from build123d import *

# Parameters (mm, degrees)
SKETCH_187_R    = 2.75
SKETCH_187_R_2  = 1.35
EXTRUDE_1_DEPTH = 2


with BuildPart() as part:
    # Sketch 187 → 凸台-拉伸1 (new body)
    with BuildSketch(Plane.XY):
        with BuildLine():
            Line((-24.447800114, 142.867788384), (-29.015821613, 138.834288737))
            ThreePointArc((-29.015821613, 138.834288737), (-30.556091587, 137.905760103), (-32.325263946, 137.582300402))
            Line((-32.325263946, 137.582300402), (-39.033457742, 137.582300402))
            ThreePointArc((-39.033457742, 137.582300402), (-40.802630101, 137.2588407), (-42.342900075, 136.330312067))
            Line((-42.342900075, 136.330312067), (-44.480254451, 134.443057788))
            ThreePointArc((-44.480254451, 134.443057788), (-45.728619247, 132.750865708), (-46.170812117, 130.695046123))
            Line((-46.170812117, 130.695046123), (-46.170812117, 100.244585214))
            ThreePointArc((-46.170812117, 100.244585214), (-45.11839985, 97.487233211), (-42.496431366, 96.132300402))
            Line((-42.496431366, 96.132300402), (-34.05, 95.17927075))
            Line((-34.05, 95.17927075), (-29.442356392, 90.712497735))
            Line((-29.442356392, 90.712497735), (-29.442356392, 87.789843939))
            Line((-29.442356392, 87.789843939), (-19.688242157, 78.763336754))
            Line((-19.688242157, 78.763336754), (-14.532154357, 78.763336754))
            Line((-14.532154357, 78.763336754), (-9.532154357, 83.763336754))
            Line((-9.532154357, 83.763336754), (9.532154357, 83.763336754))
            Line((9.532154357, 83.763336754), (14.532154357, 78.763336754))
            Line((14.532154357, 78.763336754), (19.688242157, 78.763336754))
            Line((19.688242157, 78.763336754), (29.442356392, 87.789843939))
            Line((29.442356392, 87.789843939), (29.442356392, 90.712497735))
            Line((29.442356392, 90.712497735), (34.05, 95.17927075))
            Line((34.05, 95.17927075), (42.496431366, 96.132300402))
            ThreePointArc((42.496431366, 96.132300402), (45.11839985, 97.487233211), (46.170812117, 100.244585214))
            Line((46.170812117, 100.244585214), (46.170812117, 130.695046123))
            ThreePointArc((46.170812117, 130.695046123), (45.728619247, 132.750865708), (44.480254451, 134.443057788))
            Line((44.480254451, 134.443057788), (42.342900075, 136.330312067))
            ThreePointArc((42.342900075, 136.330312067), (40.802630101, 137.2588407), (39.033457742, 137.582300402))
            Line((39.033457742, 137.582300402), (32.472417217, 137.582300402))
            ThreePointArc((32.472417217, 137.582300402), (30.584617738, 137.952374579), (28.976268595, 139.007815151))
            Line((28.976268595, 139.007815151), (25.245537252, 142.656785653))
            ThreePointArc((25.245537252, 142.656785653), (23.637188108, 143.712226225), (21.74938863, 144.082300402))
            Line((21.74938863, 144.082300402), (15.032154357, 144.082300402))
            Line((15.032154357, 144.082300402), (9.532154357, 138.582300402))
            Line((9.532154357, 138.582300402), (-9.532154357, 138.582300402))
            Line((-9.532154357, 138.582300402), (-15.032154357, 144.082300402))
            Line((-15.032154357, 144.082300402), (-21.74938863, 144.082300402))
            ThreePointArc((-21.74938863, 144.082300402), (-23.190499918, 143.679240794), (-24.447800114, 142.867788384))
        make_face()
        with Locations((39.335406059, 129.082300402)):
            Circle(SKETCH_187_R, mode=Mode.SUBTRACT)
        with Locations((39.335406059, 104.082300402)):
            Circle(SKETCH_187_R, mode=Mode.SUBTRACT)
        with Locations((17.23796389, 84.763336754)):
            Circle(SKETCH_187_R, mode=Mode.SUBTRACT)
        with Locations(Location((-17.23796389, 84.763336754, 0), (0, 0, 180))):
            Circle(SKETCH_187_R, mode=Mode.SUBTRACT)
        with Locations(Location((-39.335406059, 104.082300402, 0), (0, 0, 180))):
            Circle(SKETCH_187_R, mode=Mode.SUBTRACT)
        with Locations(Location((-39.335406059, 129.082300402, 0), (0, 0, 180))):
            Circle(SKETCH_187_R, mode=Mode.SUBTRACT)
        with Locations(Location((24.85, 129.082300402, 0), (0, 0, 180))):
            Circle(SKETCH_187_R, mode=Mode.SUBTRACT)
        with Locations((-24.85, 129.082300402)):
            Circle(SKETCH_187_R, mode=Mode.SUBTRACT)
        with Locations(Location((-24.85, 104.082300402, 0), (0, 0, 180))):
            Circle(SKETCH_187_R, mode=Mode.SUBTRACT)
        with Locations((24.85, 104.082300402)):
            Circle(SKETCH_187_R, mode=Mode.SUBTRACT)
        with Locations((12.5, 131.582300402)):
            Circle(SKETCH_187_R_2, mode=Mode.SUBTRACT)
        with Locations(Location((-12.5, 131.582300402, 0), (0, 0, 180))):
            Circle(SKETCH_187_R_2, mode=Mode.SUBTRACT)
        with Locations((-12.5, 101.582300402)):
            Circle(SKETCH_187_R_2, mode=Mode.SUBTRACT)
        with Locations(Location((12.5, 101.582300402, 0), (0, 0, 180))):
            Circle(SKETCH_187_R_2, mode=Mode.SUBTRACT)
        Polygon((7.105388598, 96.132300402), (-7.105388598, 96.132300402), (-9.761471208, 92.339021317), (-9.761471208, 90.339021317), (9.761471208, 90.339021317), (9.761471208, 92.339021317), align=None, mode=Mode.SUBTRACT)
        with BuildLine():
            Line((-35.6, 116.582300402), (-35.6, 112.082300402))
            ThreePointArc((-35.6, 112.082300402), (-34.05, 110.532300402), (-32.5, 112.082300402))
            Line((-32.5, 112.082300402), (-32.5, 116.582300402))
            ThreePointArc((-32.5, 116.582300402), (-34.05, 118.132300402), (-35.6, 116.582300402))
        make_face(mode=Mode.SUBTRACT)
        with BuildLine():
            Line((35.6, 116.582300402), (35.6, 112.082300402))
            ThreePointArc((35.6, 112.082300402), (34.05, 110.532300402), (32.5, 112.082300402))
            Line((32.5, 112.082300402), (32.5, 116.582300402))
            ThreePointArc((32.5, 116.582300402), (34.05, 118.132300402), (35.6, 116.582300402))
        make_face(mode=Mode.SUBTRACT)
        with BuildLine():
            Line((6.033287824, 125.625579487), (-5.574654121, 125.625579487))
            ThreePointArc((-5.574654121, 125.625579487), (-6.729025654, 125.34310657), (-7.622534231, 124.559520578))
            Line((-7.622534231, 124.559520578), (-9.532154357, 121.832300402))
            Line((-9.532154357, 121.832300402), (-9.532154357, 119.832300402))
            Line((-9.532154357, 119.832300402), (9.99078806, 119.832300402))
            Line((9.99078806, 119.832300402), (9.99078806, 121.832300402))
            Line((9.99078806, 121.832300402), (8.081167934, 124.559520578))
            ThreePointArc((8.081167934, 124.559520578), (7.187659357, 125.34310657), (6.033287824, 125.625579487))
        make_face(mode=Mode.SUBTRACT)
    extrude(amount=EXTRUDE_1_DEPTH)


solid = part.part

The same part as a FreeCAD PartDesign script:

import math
import FreeCAD as App
import Part
import Sketcher
Q = App.Units.Quantity

doc = App.newDocument("Part")
params = doc.addObject("Spreadsheet::Sheet", "Params")
for row, (alias, value) in enumerate([
    ("sketch1_radius", "5 mm"),
    ("sketch1_diameter", "5.5 mm"),
    ("sketch1_diameter2", "2.7 mm"),
    ("sketch1_radius2", "2.5 mm"),
    ("sketch1_height", "2 mm"),
    ("pad1_length", "2 mm"),
], start=1):
    params.set(f"A{row}", alias)
    params.set(f"B{row}", "=" + value)
    params.setAlias(f"B{row}", alias)

body = doc.addObject("PartDesign::Body", "Body")

sketch1 = body.newObject("Sketcher::SketchObject", "Sketch")
sketch1.AttachmentSupport = (doc.getObject("XY_Plane"), [""])
sketch1.MapMode = "FlatFace"
sketch1.addGeometry(Part.LineSegment(App.Vector(-24.4, 142.9, 0), App.Vector(-29, 138.8, 0)), False)
sketch1.addGeometry(Part.ArcOfCircle(Part.Circle(App.Vector(-32.3, 142.6, 0), App.Vector(0, 0, 1), 5), math.radians(-90), math.radians(-49)), False)
sketch1.addGeometry(Part.LineSegment(App.Vector(-32.3, 137.6, 0), App.Vector(-39, 137.6, 0)), False)
sketch1.addGeometry(Part.ArcOfCircle(Part.Circle(App.Vector(-39, 132.6, 0), App.Vector(0, 0, 1), 5), math.radians(90), math.radians(131)), False)
sketch1.addGeometry(Part.LineSegment(App.Vector(-42.3, 136.3, 0), App.Vector(-44.5, 134.4, 0)), False)
sketch1.addGeometry(Part.ArcOfCircle(Part.Circle(App.Vector(-41.2, 130.7, 0), App.Vector(0, 0, 1), 5), math.radians(131), math.radians(180)), False)
sketch1.addGeometry(Part.LineSegment(App.Vector(-46.2, 130.7, 0), App.Vector(-46.2, 100.2, 0)), False)
sketch1.addGeometry(Part.ArcOfCircle(Part.Circle(App.Vector(-42, 100.2, 0), App.Vector(0, 0, 1), 4.1), math.radians(-180), math.radians(-96)), False)
sketch1.addGeometry(Part.LineSegment(App.Vector(-42.5, 96.1, 0), App.Vector(-34, 95.2, 0)), False)
sketch1.addGeometry(Part.LineSegment(App.Vector(-34, 95.2, 0), App.Vector(-29.4, 90.7, 0)), False)
sketch1.addGeometry(Part.LineSegment(App.Vector(-29.4, 90.7, 0), App.Vector(-29.4, 87.8, 0)), False)
sketch1.addGeometry(Part.LineSegment(App.Vector(-29.4, 87.8, 0), App.Vector(-19.7, 78.8, 0)), False)
sketch1.addGeometry(Part.LineSegment(App.Vector(-19.7, 78.8, 0), App.Vector(-14.5, 78.8, 0)), False)
sketch1.addGeometry(Part.LineSegment(App.Vector(-14.5, 78.8, 0), App.Vector(-9.5, 83.8, 0)), False)
sketch1.addGeometry(Part.LineSegment(App.Vector(-9.5, 83.8, 0), App.Vector(9.5, 83.8, 0)), False)
sketch1.addGeometry(Part.LineSegment(App.Vector(9.5, 83.8, 0), App.Vector(14.5, 78.8, 0)), False)
sketch1.addGeometry(Part.LineSegment(App.Vector(14.5, 78.8, 0), App.Vector(19.7, 78.8, 0)), False)
sketch1.addGeometry(Part.LineSegment(App.Vector(19.7, 78.8, 0), App.Vector(29.4, 87.8, 0)), False)
sketch1.addGeometry(Part.LineSegment(App.Vector(29.4, 87.8, 0), App.Vector(29.4, 90.7, 0)), False)
sketch1.addGeometry(Part.LineSegment(App.Vector(29.4, 90.7, 0), App.Vector(34, 95.2, 0)), False)
sketch1.addGeometry(Part.LineSegment(App.Vector(34, 95.2, 0), App.Vector(42.5, 96.1, 0)), False)
sketch1.addGeometry(Part.ArcOfCircle(Part.Circle(App.Vector(42, 100.2, 0), App.Vector(0, 0, 1), 4.1), math.radians(-84), math.radians(0)), False)
sketch1.addGeometry(Part.LineSegment(App.Vector(46.2, 100.2, 0), App.Vector(46.2, 130.7, 0)), False)
sketch1.addGeometry(Part.ArcOfCircle(Part.Circle(App.Vector(41.2, 130.7, 0), App.Vector(0, 0, 1), 5), math.radians(0), math.radians(49)), False)
sketch1.addGeometry(Part.LineSegment(App.Vector(44.5, 134.4, 0), App.Vector(42.3, 136.3, 0)), False)
sketch1.addGeometry(Part.ArcOfCircle(Part.Circle(App.Vector(39, 132.6, 0), App.Vector(0, 0, 1), 5), math.radians(49), math.radians(90)), False)
sketch1.addGeometry(Part.LineSegment(App.Vector(39, 137.6, 0), App.Vector(32.5, 137.6, 0)), False)
sketch1.addGeometry(Part.ArcOfCircle(Part.Circle(App.Vector(32.5, 142.6, 0), App.Vector(0, 0, 1), 5), math.radians(-134), math.radians(-90)), False)
sketch1.addGeometry(Part.LineSegment(App.Vector(29, 139, 0), App.Vector(25.2, 142.7, 0)), False)
sketch1.addGeometry(Part.ArcOfCircle(Part.Circle(App.Vector(21.7, 139.1, 0), App.Vector(0, 0, 1), 5), math.radians(46), math.radians(90)), False)
sketch1.addGeometry(Part.LineSegment(App.Vector(21.7, 144.1, 0), App.Vector(15, 144.1, 0)), False)
sketch1.addGeometry(Part.LineSegment(App.Vector(15, 144.1, 0), App.Vector(9.5, 138.6, 0)), False)
sketch1.addGeometry(Part.LineSegment(App.Vector(9.5, 138.6, 0), App.Vector(-9.5, 138.6, 0)), False)
sketch1.addGeometry(Part.LineSegment(App.Vector(-9.5, 138.6, 0), App.Vector(-15, 144.1, 0)), False)
sketch1.addGeometry(Part.LineSegment(App.Vector(-15, 144.1, 0), App.Vector(-21.7, 144.1, 0)), False)
sketch1.addGeometry(Part.ArcOfCircle(Part.Circle(App.Vector(-21.1, 139.1, 0), App.Vector(0, 0, 1), 5), math.radians(97), math.radians(131)), False)
sketch1.addGeometry(Part.Circle(App.Vector(-17.2, 84.8, 0), App.Vector(0, 0, 1), 2.8), False)
sketch1.addGeometry(Part.Circle(App.Vector(-39.3, 104.1, 0), App.Vector(0, 0, 1), 2.8), False)
sketch1.addGeometry(Part.Circle(App.Vector(-24.9, 104.1, 0), App.Vector(0, 0, 1), 2.8), False)
sketch1.addGeometry(Part.Circle(App.Vector(-12.5, 101.6, 0), App.Vector(0, 0, 1), 1.4), False)
sketch1.addGeometry(Part.Circle(App.Vector(17.2, 84.8, 0), App.Vector(0, 0, 1), 2.8), False)
sketch1.addGeometry(Part.LineSegment(App.Vector(-7.1, 96.1, 0), App.Vector(7.1, 96.1, 0)), False)
sketch1.addGeometry(Part.LineSegment(App.Vector(7.1, 96.1, 0), App.Vector(9.8, 92.3, 0)), False)
sketch1.addGeometry(Part.LineSegment(App.Vector(9.8, 92.3, 0), App.Vector(9.8, 90.3, 0)), False)
sketch1.addGeometry(Part.LineSegment(App.Vector(9.8, 90.3, 0), App.Vector(-9.8, 90.3, 0)), False)
sketch1.addGeometry(Part.LineSegment(App.Vector(-9.8, 90.3, 0), App.Vector(-9.8, 92.3, 0)), False)
sketch1.addGeometry(Part.LineSegment(App.Vector(-9.8, 92.3, 0), App.Vector(-7.1, 96.1, 0)), False)
sketch1.addGeometry(Part.Circle(App.Vector(12.5, 101.6, 0), App.Vector(0, 0, 1), 1.4), False)
sketch1.addGeometry(Part.Circle(App.Vector(24.9, 104.1, 0), App.Vector(0, 0, 1), 2.8), False)
sketch1.addGeometry(Part.Circle(App.Vector(39.3, 104.1, 0), App.Vector(0, 0, 1), 2.8), False)
sketch1.addGeometry(Part.LineSegment(App.Vector(-35.6, 112.1, 0), App.Vector(-35.6, 116.6, 0)), False)
sketch1.addGeometry(Part.ArcOfCircle(Part.Circle(App.Vector(-34, 116.6, 0), App.Vector(0, 0, 1), 1.6), math.radians(0), math.radians(180)), False)
sketch1.addGeometry(Part.LineSegment(App.Vector(-32.5, 116.6, 0), App.Vector(-32.5, 112.1, 0)), False)
sketch1.addGeometry(Part.ArcOfCircle(Part.Circle(App.Vector(-34, 112.1, 0), App.Vector(0, 0, 1), 1.6), math.radians(180), math.radians(360)), False)
sketch1.addGeometry(Part.Circle(App.Vector(-39.3, 129.1, 0), App.Vector(0, 0, 1), 2.8), False)
sketch1.addGeometry(Part.Circle(App.Vector(-24.9, 129.1, 0), App.Vector(0, 0, 1), 2.8), False)
sketch1.addGeometry(Part.Circle(App.Vector(-12.5, 131.6, 0), App.Vector(0, 0, 1), 1.4), False)
sketch1.addGeometry(Part.ArcOfCircle(Part.Circle(App.Vector(34, 116.6, 0), App.Vector(0, 0, 1), 1.6), math.radians(0), math.radians(180)), False)
sketch1.addGeometry(Part.LineSegment(App.Vector(35.6, 116.6, 0), App.Vector(35.6, 112.1, 0)), False)
sketch1.addGeometry(Part.ArcOfCircle(Part.Circle(App.Vector(34, 112.1, 0), App.Vector(0, 0, 1), 1.6), math.radians(180), math.radians(360)), False)
sketch1.addGeometry(Part.LineSegment(App.Vector(32.5, 112.1, 0), App.Vector(32.5, 116.6, 0)), False)
sketch1.addGeometry(Part.LineSegment(App.Vector(-5.6, 125.6, 0), App.Vector(6, 125.6, 0)), False)
sketch1.addGeometry(Part.ArcOfCircle(Part.Circle(App.Vector(6, 123.1, 0), App.Vector(0, 0, 1), 2.5), math.radians(35), math.radians(90)), False)
sketch1.addGeometry(Part.LineSegment(App.Vector(8.1, 124.6, 0), App.Vector(10, 121.8, 0)), False)
sketch1.addGeometry(Part.LineSegment(App.Vector(10, 121.8, 0), App.Vector(10, 119.8, 0)), False)
sketch1.addGeometry(Part.LineSegment(App.Vector(10, 119.8, 0), App.Vector(-9.5, 119.8, 0)), False)
sketch1.addGeometry(Part.LineSegment(App.Vector(-9.5, 119.8, 0), App.Vector(-9.5, 121.8, 0)), False)
sketch1.addGeometry(Part.LineSegment(App.Vector(-9.5, 121.8, 0), App.Vector(-7.6, 124.6, 0)), False)
sketch1.addGeometry(Part.ArcOfCircle(Part.Circle(App.Vector(-5.6, 123.1, 0), App.Vector(0, 0, 1), 2.5), math.radians(90), math.radians(145)), False)
sketch1.addGeometry(Part.Circle(App.Vector(12.5, 131.6, 0), App.Vector(0, 0, 1), 1.4), False)
sketch1.addGeometry(Part.Circle(App.Vector(24.9, 129.1, 0), App.Vector(0, 0, 1), 2.8), False)
sketch1.addGeometry(Part.Circle(App.Vector(39.3, 129.1, 0), App.Vector(0, 0, 1), 2.8), False)
sketch1.addConstraint(Sketcher.Constraint("Tangent", 0, 2, 1, 2))
sketch1.addConstraint(Sketcher.Constraint("Tangent", 1, 1, 2, 1))
sketch1.addConstraint(Sketcher.Constraint("Tangent", 2, 2, 3, 1))
sketch1.addConstraint(Sketcher.Constraint("Tangent", 3, 2, 4, 1))
sketch1.addConstraint(Sketcher.Constraint("Tangent", 4, 2, 5, 1))
sketch1.addConstraint(Sketcher.Constraint("Tangent", 5, 2, 6, 1))
sketch1.addConstraint(Sketcher.Constraint("Tangent", 6, 2, 7, 1))
sketch1.addConstraint(Sketcher.Constraint("Tangent", 7, 2, 8, 1))
sketch1.addConstraint(Sketcher.Constraint("Coincident", 8, 2, 9, 1))
sketch1.addConstraint(Sketcher.Constraint("Coincident", 9, 2, 10, 1))
sketch1.addConstraint(Sketcher.Constraint("Coincident", 10, 2, 11, 1))
sketch1.addConstraint(Sketcher.Constraint("Coincident", 11, 2, 12, 1))
sketch1.addConstraint(Sketcher.Constraint("Coincident", 12, 2, 13, 1))
sketch1.addConstraint(Sketcher.Constraint("Coincident", 13, 2, 14, 1))
sketch1.addConstraint(Sketcher.Constraint("Coincident", 14, 2, 15, 1))
sketch1.addConstraint(Sketcher.Constraint("Coincident", 15, 2, 16, 1))
sketch1.addConstraint(Sketcher.Constraint("Coincident", 16, 2, 17, 1))
sketch1.addConstraint(Sketcher.Constraint("Coincident", 17, 2, 18, 1))
sketch1.addConstraint(Sketcher.Constraint("Coincident", 18, 2, 19, 1))
sketch1.addConstraint(Sketcher.Constraint("Coincident", 19, 2, 20, 1))
sketch1.addConstraint(Sketcher.Constraint("Tangent", 20, 2, 21, 1))
sketch1.addConstraint(Sketcher.Constraint("Tangent", 21, 2, 22, 1))
sketch1.addConstraint(Sketcher.Constraint("Tangent", 22, 2, 23, 1))
sketch1.addConstraint(Sketcher.Constraint("Tangent", 23, 2, 24, 1))
sketch1.addConstraint(Sketcher.Constraint("Tangent", 24, 2, 25, 1))
sketch1.addConstraint(Sketcher.Constraint("Tangent", 25, 2, 26, 1))
sketch1.addConstraint(Sketcher.Constraint("Tangent", 26, 2, 27, 2))
sketch1.addConstraint(Sketcher.Constraint("Tangent", 27, 1, 28, 1))
sketch1.addConstraint(Sketcher.Constraint("Tangent", 28, 2, 29, 1))
sketch1.addConstraint(Sketcher.Constraint("Tangent", 29, 2, 30, 1))
sketch1.addConstraint(Sketcher.Constraint("Coincident", 30, 2, 31, 1))
sketch1.addConstraint(Sketcher.Constraint("Coincident", 31, 2, 32, 1))
sketch1.addConstraint(Sketcher.Constraint("Coincident", 32, 2, 33, 1))
sketch1.addConstraint(Sketcher.Constraint("Coincident", 33, 2, 34, 1))
sketch1.addConstraint(Sketcher.Constraint("Coincident", 34, 2, 35, 1))
sketch1.addConstraint(Sketcher.Constraint("Tangent", 35, 2, 0, 1))
sketch1.addConstraint(Sketcher.Constraint("Coincident", 41, 2, 42, 1))
sketch1.addConstraint(Sketcher.Constraint("Coincident", 42, 2, 43, 1))
sketch1.addConstraint(Sketcher.Constraint("Coincident", 43, 2, 44, 1))
sketch1.addConstraint(Sketcher.Constraint("Coincident", 44, 2, 45, 1))
sketch1.addConstraint(Sketcher.Constraint("Coincident", 45, 2, 46, 1))
sketch1.addConstraint(Sketcher.Constraint("Coincident", 46, 2, 41, 1))
sketch1.addConstraint(Sketcher.Constraint("Tangent", 50, 2, 51, 2))
sketch1.addConstraint(Sketcher.Constraint("Tangent", 51, 1, 52, 1))
sketch1.addConstraint(Sketcher.Constraint("Tangent", 52, 2, 53, 2))
sketch1.addConstraint(Sketcher.Constraint("Tangent", 53, 1, 50, 1))
sketch1.addConstraint(Sketcher.Constraint("Tangent", 57, 1, 58, 1))
sketch1.addConstraint(Sketcher.Constraint("Tangent", 58, 2, 59, 2))
sketch1.addConstraint(Sketcher.Constraint("Tangent", 59, 1, 60, 1))
sketch1.addConstraint(Sketcher.Constraint("Tangent", 60, 2, 57, 2))
sketch1.addConstraint(Sketcher.Constraint("Tangent", 61, 2, 62, 2))
sketch1.addConstraint(Sketcher.Constraint("Tangent", 62, 1, 63, 1))
sketch1.addConstraint(Sketcher.Constraint("Coincident", 63, 2, 64, 1))
sketch1.addConstraint(Sketcher.Constraint("Coincident", 64, 2, 65, 1))
sketch1.addConstraint(Sketcher.Constraint("Coincident", 65, 2, 66, 1))
sketch1.addConstraint(Sketcher.Constraint("Coincident", 66, 2, 67, 1))
sketch1.addConstraint(Sketcher.Constraint("Tangent", 67, 2, 68, 2))
sketch1.addConstraint(Sketcher.Constraint("Tangent", 68, 1, 61, 1))
sketch1.addConstraint(Sketcher.Constraint("Horizontal", 2))
sketch1.addConstraint(Sketcher.Constraint("Vertical", 6))
sketch1.addConstraint(Sketcher.Constraint("Vertical", 10))
sketch1.addConstraint(Sketcher.Constraint("Horizontal", 12))
sketch1.addConstraint(Sketcher.Constraint("Horizontal", 14))
sketch1.addConstraint(Sketcher.Constraint("Horizontal", 16))
sketch1.addConstraint(Sketcher.Constraint("Vertical", 18))
sketch1.addConstraint(Sketcher.Constraint("Vertical", 22))
sketch1.addConstraint(Sketcher.Constraint("Horizontal", 26))
sketch1.addConstraint(Sketcher.Constraint("Horizontal", 30))
sketch1.addConstraint(Sketcher.Constraint("Horizontal", 32))
sketch1.addConstraint(Sketcher.Constraint("Horizontal", 34))
sketch1.addConstraint(Sketcher.Constraint("Horizontal", 41))
sketch1.addConstraint(Sketcher.Constraint("Vertical", 43))
sketch1.addConstraint(Sketcher.Constraint("Horizontal", 44))
sketch1.addConstraint(Sketcher.Constraint("Vertical", 45))
sketch1.addConstraint(Sketcher.Constraint("Vertical", 50))
sketch1.addConstraint(Sketcher.Constraint("Vertical", 52))
sketch1.addConstraint(Sketcher.Constraint("Vertical", 58))
sketch1.addConstraint(Sketcher.Constraint("Vertical", 60))
sketch1.addConstraint(Sketcher.Constraint("Horizontal", 61))
sketch1.addConstraint(Sketcher.Constraint("Vertical", 64))
sketch1.addConstraint(Sketcher.Constraint("Horizontal", 65))
sketch1.addConstraint(Sketcher.Constraint("Vertical", 66))
sketch1.addConstraint(Sketcher.Constraint("Equal", 1, 3))
sketch1.addConstraint(Sketcher.Constraint("Equal", 3, 5))
sketch1.addConstraint(Sketcher.Constraint("Equal", 7, 21))
sketch1.addConstraint(Sketcher.Constraint("Equal", 5, 23))
sketch1.addConstraint(Sketcher.Constraint("Equal", 23, 25))
sketch1.addConstraint(Sketcher.Constraint("Equal", 25, 27))
sketch1.addConstraint(Sketcher.Constraint("Equal", 27, 29))
sketch1.addConstraint(Sketcher.Constraint("Equal", 29, 35))
sketch1.addConstraint(Sketcher.Constraint("Equal", 36, 37))
sketch1.addConstraint(Sketcher.Constraint("Equal", 37, 38))
sketch1.addConstraint(Sketcher.Constraint("Equal", 38, 40))
sketch1.addConstraint(Sketcher.Constraint("Equal", 39, 47))
sketch1.addConstraint(Sketcher.Constraint("Equal", 40, 48))
sketch1.addConstraint(Sketcher.Constraint("Equal", 48, 49))
sketch1.addConstraint(Sketcher.Constraint("Equal", 49, 54))
sketch1.addConstraint(Sketcher.Constraint("Equal", 54, 55))
sketch1.addConstraint(Sketcher.Constraint("Equal", 47, 56))
sketch1.addConstraint(Sketcher.Constraint("Equal", 53, 57))
sketch1.addConstraint(Sketcher.Constraint("Equal", 62, 68))
sketch1.addConstraint(Sketcher.Constraint("Equal", 56, 69))
sketch1.addConstraint(Sketcher.Constraint("Equal", 55, 70))
sketch1.addConstraint(Sketcher.Constraint("Equal", 70, 71))
sketch1.addConstraint(Sketcher.Constraint("Symmetric", 7, 3, 21, 3, -2))
sketch1.addConstraint(Sketcher.Constraint("Symmetric", 3, 3, 25, 3, -2))
sketch1.addConstraint(Sketcher.Constraint("Symmetric", 36, 3, 40, 3, -2))
sketch1.addConstraint(Sketcher.Constraint("Symmetric", 39, 3, 47, 3, -2))
sketch1.addConstraint(Sketcher.Constraint("Symmetric", 38, 3, 48, 3, -2))
sketch1.addConstraint(Sketcher.Constraint("Symmetric", 37, 3, 49, 3, -2))
sketch1.addConstraint(Sketcher.Constraint("Symmetric", 51, 3, 57, 3, -2))
sketch1.addConstraint(Sketcher.Constraint("Symmetric", 56, 3, 69, 3, -2))
sketch1.addConstraint(Sketcher.Constraint("Symmetric", 55, 3, 70, 3, -2))
sketch1.addConstraint(Sketcher.Constraint("Symmetric", 54, 3, 71, 3, -2))
sketch1.addConstraint(Sketcher.Constraint("Symmetric", 12, 2, 15, 2, -2))
sketch1.addConstraint(Sketcher.Constraint("Symmetric", 10, 2, 17, 2, -2))
sketch1.addConstraint(Sketcher.Constraint("Symmetric", 8, 2, 19, 2, -2))
sketch1.addConstraint(Sketcher.Constraint("Symmetric", 30, 2, 33, 2, -2))
sketch1.addConstraint(Sketcher.Constraint("Symmetric", 42, 2, 45, 2, -2))
sketch1.addConstraint(Sketcher.Constraint("Parallel", 0, 4))
sketch1.addConstraint(Sketcher.Constraint("Perpendicular", 13, 15))
sketch1.addConstraint(Sketcher.Constraint("Perpendicular", 15, 31))
sketch1.addConstraint(Sketcher.Constraint("Perpendicular", 31, 33))
sketch1.addConstraint(Sketcher.Constraint("Parallel", 42, 63))
sketch1.addConstraint(Sketcher.Constraint("Parallel", 46, 67))
sketch1.addConstraint(Sketcher.Constraint("Horizontal", 5, 3, 23, 3))
sketch1.addConstraint(Sketcher.Constraint("Horizontal", 37, 3, 38, 3))
sketch1.addConstraint(Sketcher.Constraint("Horizontal", 54, 3, 55, 3))
sketch1.addConstraint(Sketcher.Constraint("Horizontal", 53, 3, 59, 3))
sketch1.addConstraint(Sketcher.Constraint("Horizontal", 9, 2, 18, 2))
sketch1.addConstraint(Sketcher.Constraint("Horizontal", 20, 2, 41, 2))
sketch1.addConstraint(Sketcher.Constraint("Horizontal", 63, 2, 66, 2))
sketch1.addConstraint(Sketcher.Constraint("Horizontal", 62, 1, 67, 2))
sketch1.addConstraint(Sketcher.Constraint("Vertical", 37, 3, 54, 3))
sketch1.addConstraint(Sketcher.Constraint("Vertical", 38, 3, 55, 3))
sketch1.addConstraint(Sketcher.Constraint("Vertical", 39, 3, 56, 3))
sketch1.addConstraint(Sketcher.Constraint("Vertical", 53, 3, 8, 2))
sketch1.addConstraint(Sketcher.Constraint("Vertical", 14, 2, 31, 2))
sketch1.addConstraint(Sketcher.Constraint("Vertical", 13, 2, 32, 2))
sketch1.addConstraint(Sketcher.Constraint("Vertical", 32, 2, 65, 2))
sketch1.addConstraint(Sketcher.Constraint("Equal", 12, 16))
sketch1.addConstraint(Sketcher.Constraint("Equal", 30, 34))
sketch1.addConstraint(Sketcher.Constraint("Equal", 44, 65))
sketch1.addConstraint(Sketcher.Constraint("Equal", 45, 64))
sketch1.addConstraint(Sketcher.Constraint("Radius", 1, 5.0))
sketch1.addConstraint(Sketcher.Constraint("Diameter", 36, 5.5))
sketch1.addConstraint(Sketcher.Constraint("Diameter", 39, 2.7))
sketch1.addConstraint(Sketcher.Constraint("Radius", 62, 2.5))
sketch1.addConstraint(Sketcher.Constraint("DistanceY", 43, 2, 43, 1, 2.0))
sketch1.addConstraint(Sketcher.Constraint("Angle", 42, Q("-55 deg")))
sketch1.addConstraint(Sketcher.Constraint("Radius", 51, 1.55))
sketch1.addConstraint(Sketcher.Constraint("DistanceY", 50, 1, 50, 2, 4.5))
sketch1.addConstraint(Sketcher.Constraint("DistanceX", 39, 3, -1, 1, 12.5))
sketch1.addConstraint(Sketcher.Constraint("DistanceX", 50, 2, -1, 1, 35.6))
sketch1.addConstraint(Sketcher.Constraint("DistanceX", 38, 3, -1, 1, 24.85))
sketch1.addConstraint(Sketcher.Constraint("Radius", 7, 4.138379))
sketch1.addConstraint(Sketcher.Constraint("DistanceX", 14, 1, 14, 2, 19.064309))
sketch1.addConstraint(Sketcher.Constraint("DistanceX", 26, 2, 26, 1, 6.561041))
sketch1.addConstraint(Sketcher.Constraint("DistanceX", 61, 1, 61, 2, 11.607942))
sketch1.addConstraint(Sketcher.Constraint("DistanceY", 6, 2, 6, 1, 30.450461))
sketch1.addConstraint(Sketcher.Constraint("DistanceY", -1, 1, 1, 3, 142.5823))
sketch1.addConstraint(Sketcher.Constraint("DistanceY", -1, 1, 29, 3, 139.0823))
sketch1.addConstraint(Sketcher.Constraint("DistanceY", -1, 1, 37, 3, 104.0823))
sketch1.addConstraint(Sketcher.Constraint("DistanceY", -1, 1, 39, 3, 101.5823))
sketch1.addConstraint(Sketcher.Constraint("DistanceY", -1, 1, 51, 3, 116.5823))
sketch1.addConstraint(Sketcher.Constraint("DistanceY", -1, 1, 54, 3, 129.0823))
sketch1.addConstraint(Sketcher.Constraint("DistanceY", -1, 1, 56, 3, 131.5823))
sketch1.addConstraint(Sketcher.Constraint("DistanceX", 3, 2, -1, 1, 42.3429))
sketch1.addConstraint(Sketcher.Constraint("DistanceY", -1, 1, 7, 2, 96.1323))
sketch1.addConstraint(Sketcher.Constraint("DistanceY", -1, 1, 31, 2, 138.5823))
sketch1.addConstraint(Sketcher.Constraint("DistanceX", 35, 2, -1, 1, 24.4478))
sketch1.addConstraint(Sketcher.Constraint("DistanceY", -1, 1, 63, 2, 121.8323))
sketch1.addConstraint(Sketcher.Constraint("Distance", 42, 4.630739))
sketch1.addConstraint(Sketcher.Constraint("Distance", 63, 3.329321))
sketch1.addConstraint(Sketcher.Constraint("DistanceX", 2, 2, 2, 1, 6.708194))
sketch1.addConstraint(Sketcher.Constraint("DistanceX", 12, 1, 12, 2, 5.156088))
sketch1.addConstraint(Sketcher.Constraint("DistanceX", 30, 2, 30, 1, 6.717234))
sketch1.addConstraint(Sketcher.Constraint("DistanceY", 10, 2, 10, 1, 2.922654))
sketch1.addConstraint(Sketcher.Constraint("DistanceX", 7, 2, -1, 1, 42.496431))
sketch1.addConstraint(Sketcher.Constraint("Distance", 9, 6.417355))
sketch1.addConstraint(Sketcher.Constraint("Distance", 11, 13.289867))
sketch1.addConstraint(Sketcher.Constraint("Distance", 13, 7.071068))
sketch1.addConstraint(Sketcher.Constraint("DistanceX", 36, 3, -1, 1, 17.237964))
sketch1.addConstraint(Sketcher.Constraint("DistanceY", -1, 1, 36, 3, 84.763337))
sketch1.addConstraint(Sketcher.Constraint("DistanceX", 37, 3, -1, 1, 39.335406))
sketch1.addConstraint(Sketcher.Constraint("DistanceX", 9, 2, -1, 1, 29.442356))
sketch1.setExpression("Constraints[144]", "Params.sketch1_radius")
sketch1.setExpression("Constraints[145]", "Params.sketch1_diameter")
sketch1.setExpression("Constraints[146]", "Params.sketch1_diameter2")
sketch1.setExpression("Constraints[147]", "Params.sketch1_radius2")
sketch1.setExpression("Constraints[148]", "Params.sketch1_height")
pad1 = body.newObject("PartDesign::Pad", "Pad")
pad1.Profile = sketch1
pad1.setExpression("Length", "Params.pad1_length")

doc.recompute()
